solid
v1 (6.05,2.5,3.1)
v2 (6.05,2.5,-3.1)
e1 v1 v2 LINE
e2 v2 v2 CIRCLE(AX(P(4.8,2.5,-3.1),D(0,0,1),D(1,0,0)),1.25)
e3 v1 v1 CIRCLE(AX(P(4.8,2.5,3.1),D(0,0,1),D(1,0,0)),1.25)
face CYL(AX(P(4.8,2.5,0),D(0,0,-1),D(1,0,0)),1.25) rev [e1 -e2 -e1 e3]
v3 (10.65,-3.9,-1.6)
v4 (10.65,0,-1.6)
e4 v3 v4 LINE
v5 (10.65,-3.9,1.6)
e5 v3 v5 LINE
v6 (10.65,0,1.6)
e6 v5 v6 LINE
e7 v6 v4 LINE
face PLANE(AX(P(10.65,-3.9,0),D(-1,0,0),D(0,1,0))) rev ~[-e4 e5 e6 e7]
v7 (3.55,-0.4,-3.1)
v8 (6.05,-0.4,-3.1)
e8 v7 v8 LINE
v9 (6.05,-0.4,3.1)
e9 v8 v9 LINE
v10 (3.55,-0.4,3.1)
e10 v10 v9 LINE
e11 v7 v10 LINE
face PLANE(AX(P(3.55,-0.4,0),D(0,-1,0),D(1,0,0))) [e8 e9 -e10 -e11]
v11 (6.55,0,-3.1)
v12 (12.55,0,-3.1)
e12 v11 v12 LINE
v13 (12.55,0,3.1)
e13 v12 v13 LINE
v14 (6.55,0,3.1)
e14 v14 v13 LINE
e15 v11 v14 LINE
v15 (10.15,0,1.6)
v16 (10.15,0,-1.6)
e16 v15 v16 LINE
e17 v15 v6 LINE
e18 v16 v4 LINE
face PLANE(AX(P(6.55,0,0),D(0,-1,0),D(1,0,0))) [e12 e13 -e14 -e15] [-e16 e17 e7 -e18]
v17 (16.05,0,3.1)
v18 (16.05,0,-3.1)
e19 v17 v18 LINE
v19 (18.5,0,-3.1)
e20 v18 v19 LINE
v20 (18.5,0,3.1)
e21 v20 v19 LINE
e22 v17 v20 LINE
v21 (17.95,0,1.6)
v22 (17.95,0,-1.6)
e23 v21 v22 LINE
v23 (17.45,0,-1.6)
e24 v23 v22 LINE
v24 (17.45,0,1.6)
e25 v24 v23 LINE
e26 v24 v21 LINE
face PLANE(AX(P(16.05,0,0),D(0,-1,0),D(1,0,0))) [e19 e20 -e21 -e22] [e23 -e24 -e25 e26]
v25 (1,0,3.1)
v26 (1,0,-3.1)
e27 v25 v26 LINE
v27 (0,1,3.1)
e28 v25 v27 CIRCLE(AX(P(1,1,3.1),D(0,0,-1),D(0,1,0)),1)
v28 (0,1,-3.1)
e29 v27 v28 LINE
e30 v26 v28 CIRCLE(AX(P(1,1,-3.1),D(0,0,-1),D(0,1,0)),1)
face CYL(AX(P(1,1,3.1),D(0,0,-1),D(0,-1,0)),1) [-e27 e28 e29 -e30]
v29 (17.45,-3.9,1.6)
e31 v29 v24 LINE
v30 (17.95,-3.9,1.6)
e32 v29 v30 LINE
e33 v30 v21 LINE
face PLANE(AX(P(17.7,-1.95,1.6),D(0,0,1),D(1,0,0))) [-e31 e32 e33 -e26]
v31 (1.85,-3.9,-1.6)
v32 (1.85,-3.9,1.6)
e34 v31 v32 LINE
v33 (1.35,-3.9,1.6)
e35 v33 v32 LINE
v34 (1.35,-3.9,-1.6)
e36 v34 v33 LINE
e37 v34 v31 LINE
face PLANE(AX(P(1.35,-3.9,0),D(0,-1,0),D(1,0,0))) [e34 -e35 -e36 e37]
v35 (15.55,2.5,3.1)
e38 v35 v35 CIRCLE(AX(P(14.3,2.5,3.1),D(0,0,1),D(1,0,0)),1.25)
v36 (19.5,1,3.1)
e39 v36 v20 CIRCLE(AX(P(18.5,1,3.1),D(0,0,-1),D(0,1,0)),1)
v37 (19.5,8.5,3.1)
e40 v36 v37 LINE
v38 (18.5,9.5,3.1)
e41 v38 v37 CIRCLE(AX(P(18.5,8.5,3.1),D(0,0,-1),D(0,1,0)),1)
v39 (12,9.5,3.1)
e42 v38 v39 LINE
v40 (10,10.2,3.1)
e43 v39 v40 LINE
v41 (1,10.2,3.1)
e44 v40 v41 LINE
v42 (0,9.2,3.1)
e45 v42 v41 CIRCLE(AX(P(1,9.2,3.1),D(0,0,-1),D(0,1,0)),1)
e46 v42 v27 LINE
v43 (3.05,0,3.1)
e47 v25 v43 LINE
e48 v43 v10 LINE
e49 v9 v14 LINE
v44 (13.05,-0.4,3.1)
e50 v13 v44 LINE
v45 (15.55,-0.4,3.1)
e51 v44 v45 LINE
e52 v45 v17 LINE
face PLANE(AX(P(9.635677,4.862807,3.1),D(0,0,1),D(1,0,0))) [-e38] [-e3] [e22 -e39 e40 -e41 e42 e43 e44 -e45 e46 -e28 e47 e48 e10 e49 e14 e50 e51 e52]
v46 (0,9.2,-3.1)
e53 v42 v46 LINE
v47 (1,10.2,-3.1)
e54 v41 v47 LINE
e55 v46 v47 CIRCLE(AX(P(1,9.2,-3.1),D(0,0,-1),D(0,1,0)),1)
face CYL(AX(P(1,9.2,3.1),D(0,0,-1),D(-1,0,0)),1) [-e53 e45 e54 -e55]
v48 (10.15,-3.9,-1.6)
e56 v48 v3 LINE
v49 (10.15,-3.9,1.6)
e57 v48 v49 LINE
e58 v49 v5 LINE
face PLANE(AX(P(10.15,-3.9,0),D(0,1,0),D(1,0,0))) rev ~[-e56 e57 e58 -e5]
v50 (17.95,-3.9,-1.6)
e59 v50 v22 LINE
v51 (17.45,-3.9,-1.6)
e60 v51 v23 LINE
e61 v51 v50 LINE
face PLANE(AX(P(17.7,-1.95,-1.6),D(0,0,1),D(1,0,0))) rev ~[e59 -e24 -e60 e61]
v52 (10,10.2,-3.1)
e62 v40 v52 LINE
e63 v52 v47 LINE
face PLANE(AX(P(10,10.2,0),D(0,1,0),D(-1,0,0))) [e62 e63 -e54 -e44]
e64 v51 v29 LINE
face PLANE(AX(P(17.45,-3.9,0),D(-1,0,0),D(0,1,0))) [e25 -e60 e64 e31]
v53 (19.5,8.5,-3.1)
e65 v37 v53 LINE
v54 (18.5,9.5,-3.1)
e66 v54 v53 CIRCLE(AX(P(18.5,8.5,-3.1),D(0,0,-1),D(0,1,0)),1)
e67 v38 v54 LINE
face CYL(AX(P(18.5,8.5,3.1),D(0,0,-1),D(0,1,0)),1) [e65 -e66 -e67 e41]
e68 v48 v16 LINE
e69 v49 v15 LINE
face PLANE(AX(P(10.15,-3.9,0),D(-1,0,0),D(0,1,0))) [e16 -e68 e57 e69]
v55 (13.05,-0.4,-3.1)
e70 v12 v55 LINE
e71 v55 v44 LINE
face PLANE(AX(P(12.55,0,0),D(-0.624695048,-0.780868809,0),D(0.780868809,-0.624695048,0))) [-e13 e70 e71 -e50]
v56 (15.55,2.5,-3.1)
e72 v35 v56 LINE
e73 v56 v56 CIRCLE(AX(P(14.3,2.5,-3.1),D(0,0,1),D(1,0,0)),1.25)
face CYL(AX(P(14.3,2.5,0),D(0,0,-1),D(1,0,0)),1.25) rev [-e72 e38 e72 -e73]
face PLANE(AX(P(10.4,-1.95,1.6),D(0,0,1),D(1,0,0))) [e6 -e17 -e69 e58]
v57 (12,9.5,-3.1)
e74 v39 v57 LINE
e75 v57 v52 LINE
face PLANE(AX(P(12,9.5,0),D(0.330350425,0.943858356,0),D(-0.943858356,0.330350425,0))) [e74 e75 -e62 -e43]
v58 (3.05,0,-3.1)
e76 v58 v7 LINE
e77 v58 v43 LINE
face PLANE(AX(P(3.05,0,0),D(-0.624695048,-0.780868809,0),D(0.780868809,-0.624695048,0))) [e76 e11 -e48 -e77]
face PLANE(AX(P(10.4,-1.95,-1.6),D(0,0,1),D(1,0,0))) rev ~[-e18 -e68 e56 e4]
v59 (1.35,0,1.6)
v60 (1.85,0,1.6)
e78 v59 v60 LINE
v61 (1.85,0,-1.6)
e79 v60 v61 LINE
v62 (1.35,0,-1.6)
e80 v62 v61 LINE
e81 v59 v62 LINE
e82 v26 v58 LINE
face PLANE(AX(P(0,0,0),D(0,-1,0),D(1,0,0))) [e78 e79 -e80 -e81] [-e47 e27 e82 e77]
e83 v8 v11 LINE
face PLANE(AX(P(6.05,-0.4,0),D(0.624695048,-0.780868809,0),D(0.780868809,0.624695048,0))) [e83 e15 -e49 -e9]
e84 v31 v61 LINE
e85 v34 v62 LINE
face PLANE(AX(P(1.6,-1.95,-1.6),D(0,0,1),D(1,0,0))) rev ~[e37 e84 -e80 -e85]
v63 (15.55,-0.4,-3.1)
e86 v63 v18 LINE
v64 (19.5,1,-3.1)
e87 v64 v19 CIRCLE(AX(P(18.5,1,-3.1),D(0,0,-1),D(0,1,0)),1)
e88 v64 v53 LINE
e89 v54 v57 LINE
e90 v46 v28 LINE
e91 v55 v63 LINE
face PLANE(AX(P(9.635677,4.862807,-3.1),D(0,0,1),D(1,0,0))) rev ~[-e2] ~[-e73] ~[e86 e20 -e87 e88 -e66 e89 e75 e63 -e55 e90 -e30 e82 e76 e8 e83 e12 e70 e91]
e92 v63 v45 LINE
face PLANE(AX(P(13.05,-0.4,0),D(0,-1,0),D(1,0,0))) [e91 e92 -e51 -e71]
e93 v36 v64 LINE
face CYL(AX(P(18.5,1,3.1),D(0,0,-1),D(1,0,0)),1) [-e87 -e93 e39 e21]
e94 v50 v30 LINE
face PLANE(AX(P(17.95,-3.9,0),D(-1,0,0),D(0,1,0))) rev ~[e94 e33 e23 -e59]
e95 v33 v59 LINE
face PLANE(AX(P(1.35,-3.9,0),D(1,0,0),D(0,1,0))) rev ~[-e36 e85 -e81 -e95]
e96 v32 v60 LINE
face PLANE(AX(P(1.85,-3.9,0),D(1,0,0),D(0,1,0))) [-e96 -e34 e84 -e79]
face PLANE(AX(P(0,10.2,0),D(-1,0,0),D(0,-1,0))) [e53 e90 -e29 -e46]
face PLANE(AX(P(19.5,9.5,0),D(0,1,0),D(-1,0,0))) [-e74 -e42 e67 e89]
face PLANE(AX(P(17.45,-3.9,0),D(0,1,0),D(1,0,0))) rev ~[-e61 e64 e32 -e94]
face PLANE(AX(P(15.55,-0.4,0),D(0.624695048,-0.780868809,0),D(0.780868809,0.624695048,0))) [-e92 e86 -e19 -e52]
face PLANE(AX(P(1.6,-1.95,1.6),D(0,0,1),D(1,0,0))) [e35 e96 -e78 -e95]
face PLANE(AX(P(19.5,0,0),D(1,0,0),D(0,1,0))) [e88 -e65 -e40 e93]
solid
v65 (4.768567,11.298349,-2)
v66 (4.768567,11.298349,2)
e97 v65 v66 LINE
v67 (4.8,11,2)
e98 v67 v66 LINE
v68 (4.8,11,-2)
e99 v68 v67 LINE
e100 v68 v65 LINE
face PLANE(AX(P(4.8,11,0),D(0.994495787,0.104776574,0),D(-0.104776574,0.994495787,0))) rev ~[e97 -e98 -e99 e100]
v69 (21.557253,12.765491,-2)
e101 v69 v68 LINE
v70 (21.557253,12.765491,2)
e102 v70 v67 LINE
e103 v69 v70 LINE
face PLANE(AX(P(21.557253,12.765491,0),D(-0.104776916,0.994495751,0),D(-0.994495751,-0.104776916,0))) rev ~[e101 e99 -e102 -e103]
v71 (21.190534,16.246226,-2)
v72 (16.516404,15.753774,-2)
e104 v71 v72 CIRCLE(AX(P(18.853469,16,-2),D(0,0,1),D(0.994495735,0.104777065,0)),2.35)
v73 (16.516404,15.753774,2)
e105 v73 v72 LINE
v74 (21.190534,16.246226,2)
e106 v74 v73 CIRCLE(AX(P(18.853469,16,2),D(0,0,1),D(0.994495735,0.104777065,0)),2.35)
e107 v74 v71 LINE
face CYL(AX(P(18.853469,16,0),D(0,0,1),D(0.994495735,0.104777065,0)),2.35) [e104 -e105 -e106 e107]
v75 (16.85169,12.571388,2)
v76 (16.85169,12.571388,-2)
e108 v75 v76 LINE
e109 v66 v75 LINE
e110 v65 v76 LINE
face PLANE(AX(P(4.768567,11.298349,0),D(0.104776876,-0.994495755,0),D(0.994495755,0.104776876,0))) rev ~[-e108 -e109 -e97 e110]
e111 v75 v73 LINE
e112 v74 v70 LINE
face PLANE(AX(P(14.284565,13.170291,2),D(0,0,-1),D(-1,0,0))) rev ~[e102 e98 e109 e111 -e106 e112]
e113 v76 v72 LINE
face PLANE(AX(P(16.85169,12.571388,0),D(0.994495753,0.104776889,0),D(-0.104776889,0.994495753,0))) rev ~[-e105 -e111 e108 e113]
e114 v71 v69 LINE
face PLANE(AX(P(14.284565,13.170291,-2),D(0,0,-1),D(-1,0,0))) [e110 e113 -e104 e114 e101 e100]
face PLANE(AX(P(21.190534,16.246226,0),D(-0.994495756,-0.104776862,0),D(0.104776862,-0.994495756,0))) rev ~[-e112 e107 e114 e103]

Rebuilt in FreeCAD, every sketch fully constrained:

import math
import FreeCAD as App
import Part
import Sketcher

V = App.Vector


def edges_at(feature, points):
    """Names of the edges that pass closest to the given points."""
    edges = feature.Shape.Edges
    near = lambda p: min(range(len(edges)), key=lambda i: edges[i].distToShape(Part.Vertex(*p))[0])
    return sorted({f"Edge{near(p) + 1}" for p in points})


def add_polygon(sketch, points):
    """Adds a closed chain of lines whose ends are joined by coincident constraints."""
    first, n = sketch.GeometryCount, len(points)
    for a, b in zip(points, points[1:] + points[:1]):
        sketch.addGeometry(Part.LineSegment(App.Vector(*a, 0), App.Vector(*b, 0)), False)
    for i in range(n):
        sketch.addConstraint(Sketcher.Constraint("Coincident", first + i, 2, first + (i + 1) % n, 1))

doc = App.newDocument("Part")
body = doc.addObject("PartDesign::Body", "Body")

sketch1 = body.newObject("Sketcher::SketchObject", "Sketch")
sketch1.AttachmentSupport = (doc.getObject("XY_Plane"), [""])
sketch1.MapMode = "FlatFace"
sketch1.addGeometry(Part.LineSegment(V(16.85, 12.57, 0), V(4.77, 11.3, 0)), False)
sketch1.addGeometry(Part.LineSegment(V(4.77, 11.3, 0), V(4.8, 11, 0)), False)
sketch1.addGeometry(Part.LineSegment(V(4.8, 11, 0), V(21.56, 12.77, 0)), False)
sketch1.addGeometry(Part.LineSegment(V(21.56, 12.77, 0), V(21.19, 16.25, 0)), False)
sketch1.addGeometry(Part.ArcOfCircle(Part.Circle(V(18.85, 16, 0), V(0, 0, 1), 2.35), math.radians(6), math.radians(186)), False)
sketch1.addGeometry(Part.LineSegment(V(16.52, 15.75, 0), V(16.85, 12.57, 0)), False)
sketch1.addConstraint(Sketcher.Constraint("Coincident", 0, 2, 1, 1))
sketch1.addConstraint(Sketcher.Constraint("Coincident", 1, 2, 2, 1))
sketch1.addConstraint(Sketcher.Constraint("Coincident", 2, 2, 3, 1))
sketch1.addConstraint(Sketcher.Constraint("Tangent", 3, 2, 4, 1))
sketch1.addConstraint(Sketcher.Constraint("Tangent", 4, 2, 5, 1))
sketch1.addConstraint(Sketcher.Constraint("Coincident", 5, 2, 0, 1))
sketch1.addConstraint(Sketcher.Constraint("Perpendicular", 0, 1))
sketch1.addConstraint(Sketcher.Constraint("Perpendicular", 1, 2))
sketch1.addConstraint(Sketcher.Constraint("Perpendicular", 2, 3))
sketch1.addConstraint(Sketcher.Constraint("Parallel", 3, 5))
sketch1.addConstraint(Sketcher.Constraint("Radius", 4, 2.35))
sketch1.addConstraint(Sketcher.Constraint("DistanceY", -1, 1, 4, 3, 16.0))
sketch1.addConstraint(Sketcher.Constraint("DistanceY", -1, 1, 1, 2, 11.0))
sketch1.addConstraint(Sketcher.Constraint("Distance", 1, 0.3))
sketch1.addConstraint(Sketcher.Constraint("Distance", 3, 3.5))
sketch1.addConstraint(Sketcher.Constraint("DistanceX", -1, 1, 1, 2, 4.8))
sketch1.addConstraint(Sketcher.Constraint("Distance", 0, 12.15))
pad1 = body.newObject("PartDesign::Pad", "Pad")
pad1.Profile = sketch1
pad1.Length = 4
pad1.Midplane = True
body2 = doc.addObject("PartDesign::Body", "Body001")
body2.AllowCompound = True

sketch2 = body2.newObject("Sketcher::SketchObject", "Sketch001")
sketch2.AttachmentSupport = (doc.getObject("XY_Plane001"), [""])
sketch2.MapMode = "FlatFace"
add_polygon(sketch2, [(17.4, 0), (17.4, -3.9), (17.9, -3.9), (17.9, 0)])
add_polygon(sketch2, [(10.2, 0), (10.2, -3.9), (10.7, -3.9), (10.7, 0)])
add_polygon(sketch2, [(1.4, 0), (1.4, -3.9), (1.9, -3.9), (1.9, 0)])
sketch2.addConstraint(Sketcher.Constraint("Vertical", 0))
sketch2.addConstraint(Sketcher.Constraint("Horizontal", 1))
sketch2.addConstraint(Sketcher.Constraint("Vertical", 2))
sketch2.addConstraint(Sketcher.Constraint("Horizontal", 3))
sketch2.addConstraint(Sketcher.Constraint("Vertical", 4))
sketch2.addConstraint(Sketcher.Constraint("Horizontal", 5))
sketch2.addConstraint(Sketcher.Constraint("Vertical", 6))
sketch2.addConstraint(Sketcher.Constraint("Horizontal", 7))
sketch2.addConstraint(Sketcher.Constraint("Vertical", 8))
sketch2.addConstraint(Sketcher.Constraint("Horizontal", 9))
sketch2.addConstraint(Sketcher.Constraint("Vertical", 10))
sketch2.addConstraint(Sketcher.Constraint("Horizontal", 11))
sketch2.addConstraint(Sketcher.Constraint("PointOnObject", 2, 2, -1))
sketch2.addConstraint(Sketcher.Constraint("PointOnObject", 6, 2, -1))
sketch2.addConstraint(Sketcher.Constraint("PointOnObject", 10, 2, -1))
sketch2.addConstraint(Sketcher.Constraint("Horizontal", 1, 2, 4, 2))
sketch2.addConstraint(Sketcher.Constraint("Horizontal", 5, 2, 8, 2))
sketch2.addConstraint(Sketcher.Constraint("Equal", 3, 5))
sketch2.addConstraint(Sketcher.Constraint("Equal", 7, 9))
sketch2.addConstraint(Sketcher.Constraint("DistanceX", 1, 1, 1, 2, 0.5))
sketch2.addConstraint(Sketcher.Constraint("DistanceY", 0, 2, 0, 1, 3.9))
sketch2.addConstraint(Sketcher.Constraint("DistanceX", 4, 2, 0, 2, 7.3))
sketch2.addConstraint(Sketcher.Constraint("DistanceX", 8, 2, 4, 2, 8.8))
sketch2.addConstraint(Sketcher.Constraint("DistanceX", -1, 1, 0, 2, 17.45))
pad2 = body2.newObject("PartDesign::Pad", "Pad001")
pad2.Profile = sketch2
pad2.Length = 3.2
pad2.Midplane = True
body3 = doc.addObject("PartDesign::Body", "Body002")
body3.AllowCompound = True

sketch3 = body3.newObject("Sketcher::SketchObject", "Sketch002")
sketch3.AttachmentSupport = (doc.getObject("XY_Plane002"), [""])
sketch3.MapMode = "FlatFace"
add_polygon(sketch3, [(0, 0), (3, 0), (3.5, -0.4), (6, -0.4), (6.5, 0), (12.6, 0), (13.1, -0.4), (15.6, -0.4), (16.1, 0), (19.5, 0), (19.5, 9.5), (12, 9.5), (10, 10.2), (0, 10.2)])
sketch3.addGeometry(Part.Circle(V(4.8, 2.5, 0), V(0, 0, 1), 1.2), False)
sketch3.addGeometry(Part.Circle(V(14.3, 2.5, 0), V(0, 0, 1), 1.2), False)
sketch3.addConstraint(Sketcher.Constraint("Horizontal", 0))
sketch3.addConstraint(Sketcher.Constraint("Horizontal", 2))
sketch3.addConstraint(Sketcher.Constraint("Horizontal", 4))
sketch3.addConstraint(Sketcher.Constraint("Horizontal", 6))
sketch3.addConstraint(Sketcher.Constraint("Horizontal", 8))
sketch3.addConstraint(Sketcher.Constraint("Vertical", 9))
sketch3.addConstraint(Sketcher.Constraint("Horizontal", 10))
sketch3.addConstraint(Sketcher.Constraint("Horizontal", 12))
sketch3.addConstraint(Sketcher.Constraint("Vertical", 13))
sketch3.addConstraint(Sketcher.Constraint("Coincident", 13, 2, -1, 1))
sketch3.addConstraint(Sketcher.Constraint("Equal", 14, 15))
sketch3.addConstraint(Sketcher.Constraint("PointOnObject", 3, 2, -1))
sketch3.addConstraint(Sketcher.Constraint("PointOnObject", 7, 2, -1))
sketch3.addConstraint(Sketcher.Constraint("Parallel", 1, 5))
sketch3.addConstraint(Sketcher.Constraint("Parallel", 3, 7))
sketch3.addConstraint(Sketcher.Constraint("Horizontal", 14, 3, 15, 3))
sketch3.addConstraint(Sketcher.Constraint("Horizontal", 2, 2, 5, 2))
sketch3.addConstraint(Sketcher.Constraint("Equal", 2, 6))
sketch3.addConstraint(Sketcher.Constraint("Equal", 1, 3))
sketch3.addConstraint(Sketcher.Constraint("Diameter", 14, 2.5))
sketch3.addConstraint(Sketcher.Constraint("DistanceX", 4, 1, 4, 2, 6.0))
sketch3.addConstraint(Sketcher.Constraint("DistanceX", 12, 2, 12, 1, 10.0))
sketch3.addConstraint(Sketcher.Constraint("DistanceX", 2, 1, 2, 2, 2.5))
sketch3.addConstraint(Sketcher.Constraint("DistanceX", 10, 2, 10, 1, 7.5))
sketch3.addConstraint(Sketcher.Constraint("DistanceY", 9, 1, 9, 2, 9.5))
sketch3.addConstraint(Sketcher.Constraint("DistanceY", 13, 2, 13, 1, 10.2))
sketch3.addConstraint(Sketcher.Constraint("DistanceX", -1, 1, 10, 2, 12.0))
sketch3.addConstraint(Sketcher.Constraint("DistanceX", 0, 2, 2, 2, 3.0))
sketch3.addConstraint(Sketcher.Constraint("DistanceY", 15, 3, 9, 2, 7.0))
sketch3.addConstraint(Sketcher.Constraint("DistanceX", 0, 1, 0, 2, 3.05))
sketch3.addConstraint(Sketcher.Constraint("DistanceX", -1, 1, 14, 3, 4.8))
sketch3.addConstraint(Sketcher.Constraint("DistanceX", -1, 1, 15, 3, 14.3))
sketch3.addConstraint(Sketcher.Constraint("DistanceY", 1, 2, -1, 1, 0.4))
pad3 = body3.newObject("PartDesign::Pad", "Pad002")
pad3.Profile = sketch3
pad3.Length = 6.2
pad3.Midplane = True
doc.recompute()

fillet = body3.newObject("PartDesign::Fillet", "Fillet")
fillet.Base = (pad3, edges_at(pad3, [
    (19.5, 9.5, 0),
    (0, 10.2, 0),
    (0, 0, 0),
    (19.5, 0, 0),
]))
fillet.Radius = 1
doc.recompute()

boolean = body3.newObject("PartDesign::Boolean", "Boolean")
boolean.Type = "Fuse"
boolean.addObjects([body])
doc.recompute()

boolean2 = body3.newObject("PartDesign::Boolean", "Boolean001")
boolean2.Type = "Fuse"
boolean2.addObjects([body2])

doc.recompute()
